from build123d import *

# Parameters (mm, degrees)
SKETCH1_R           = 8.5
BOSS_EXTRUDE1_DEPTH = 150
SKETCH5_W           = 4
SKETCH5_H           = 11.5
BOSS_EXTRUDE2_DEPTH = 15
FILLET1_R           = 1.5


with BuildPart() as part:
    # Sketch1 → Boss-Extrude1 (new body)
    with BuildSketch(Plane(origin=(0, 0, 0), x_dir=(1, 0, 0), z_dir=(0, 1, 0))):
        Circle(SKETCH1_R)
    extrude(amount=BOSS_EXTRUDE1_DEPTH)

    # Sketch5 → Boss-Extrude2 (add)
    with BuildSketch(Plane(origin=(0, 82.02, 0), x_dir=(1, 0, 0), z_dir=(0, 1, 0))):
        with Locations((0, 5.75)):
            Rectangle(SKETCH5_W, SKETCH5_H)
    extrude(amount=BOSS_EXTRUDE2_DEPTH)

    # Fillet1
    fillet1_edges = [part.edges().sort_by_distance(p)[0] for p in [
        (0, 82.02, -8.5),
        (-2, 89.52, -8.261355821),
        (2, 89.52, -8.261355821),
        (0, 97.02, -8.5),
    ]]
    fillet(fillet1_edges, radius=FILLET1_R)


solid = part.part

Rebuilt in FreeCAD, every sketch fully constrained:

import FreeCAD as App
import Part
import Sketcher

V = App.Vector


def edges_at(feature, points):
    """Names of the edges that pass closest to the given points."""
    edges = feature.Shape.Edges
    near = lambda p: min(range(len(edges)), key=lambda i: edges[i].distToShape(Part.Vertex(*p))[0])
    return sorted({f"Edge{near(p) + 1}" for p in points})


def add_polygon(sketch, points):
    """Adds a closed chain of lines whose ends are joined by coincident constraints."""
    first, n = sketch.GeometryCount, len(points)
    for a, b in zip(points, points[1:] + points[:1]):
        sketch.addGeometry(Part.LineSegment(App.Vector(*a, 0), App.Vector(*b, 0)), False)
    for i in range(n):
        sketch.addConstraint(Sketcher.Constraint("Coincident", first + i, 2, first + (i + 1) % n, 1))

doc = App.newDocument("Part")
body = doc.addObject("PartDesign::Body", "Body")

# Sketch on XZ plane
sketch1 = body.newObject("Sketcher::SketchObject", "Sketch")
sketch1.AttachmentSupport = (doc.getObject("XZ_Plane"), [""])
sketch1.MapMode = "FlatFace"
sketch1.addGeometry(Part.Circle(V(0, 0, 0), V(0, 0, 1), 8), False)
sketch1.addConstraint(Sketcher.Constraint("Coincident", 0, 3, -1, 1))
sketch1.addConstraint(Sketcher.Constraint("Diameter", 0, 17.0))
pad1 = body.newObject("PartDesign::Pad", "Pad")
pad1.Profile = sketch1
pad1.Length = 150
pad1.Reversed = True

# Sketch on XZ plane
sketch2 = body.newObject("Sketcher::SketchObject", "Sketch001")
sketch2.AttachmentSupport = (doc.getObject("XZ_Plane"), [""])
sketch2.MapMode = "FlatFace"
sketch2.AttachmentOffset = App.Placement(V(0, 0, -82.02), App.Rotation())
add_polygon(sketch2, [(-2, -11.5), (-2, 0), (2, 0), (2, -11.5)])  # lines 0-3
sketch2.addConstraint(Sketcher.Constraint("Vertical", 0))
sketch2.addConstraint(Sketcher.Constraint("Horizontal", 1))
sketch2.addConstraint(Sketcher.Constraint("Vertical", 2))
sketch2.addConstraint(Sketcher.Constraint("Horizontal", 3))
sketch2.addConstraint(Sketcher.Constraint("Symmetric", 0, 2, 1, 2, -1, 1))
sketch2.addConstraint(Sketcher.Constraint("DistanceX", 1, 1, 1, 2, 4.0))
sketch2.addConstraint(Sketcher.Constraint("DistanceY", 0, 1, 0, 2, 11.5))
pad2 = body.newObject("PartDesign::Pad", "Pad001")
pad2.Profile = sketch2
pad2.Length = 15
pad2.Reversed = True
doc.recompute()

fillet = body.newObject("PartDesign::Fillet", "Fillet")
fillet.Base = (pad2, edges_at(pad2, [
    (0, 82.02, -8.5),
    (-2, 89.52, -8.261),
    (2, 89.52, -8.261),
    (0, 97.02, -8.5),
]))
fillet.Radius = 1.5

doc.recompute()
